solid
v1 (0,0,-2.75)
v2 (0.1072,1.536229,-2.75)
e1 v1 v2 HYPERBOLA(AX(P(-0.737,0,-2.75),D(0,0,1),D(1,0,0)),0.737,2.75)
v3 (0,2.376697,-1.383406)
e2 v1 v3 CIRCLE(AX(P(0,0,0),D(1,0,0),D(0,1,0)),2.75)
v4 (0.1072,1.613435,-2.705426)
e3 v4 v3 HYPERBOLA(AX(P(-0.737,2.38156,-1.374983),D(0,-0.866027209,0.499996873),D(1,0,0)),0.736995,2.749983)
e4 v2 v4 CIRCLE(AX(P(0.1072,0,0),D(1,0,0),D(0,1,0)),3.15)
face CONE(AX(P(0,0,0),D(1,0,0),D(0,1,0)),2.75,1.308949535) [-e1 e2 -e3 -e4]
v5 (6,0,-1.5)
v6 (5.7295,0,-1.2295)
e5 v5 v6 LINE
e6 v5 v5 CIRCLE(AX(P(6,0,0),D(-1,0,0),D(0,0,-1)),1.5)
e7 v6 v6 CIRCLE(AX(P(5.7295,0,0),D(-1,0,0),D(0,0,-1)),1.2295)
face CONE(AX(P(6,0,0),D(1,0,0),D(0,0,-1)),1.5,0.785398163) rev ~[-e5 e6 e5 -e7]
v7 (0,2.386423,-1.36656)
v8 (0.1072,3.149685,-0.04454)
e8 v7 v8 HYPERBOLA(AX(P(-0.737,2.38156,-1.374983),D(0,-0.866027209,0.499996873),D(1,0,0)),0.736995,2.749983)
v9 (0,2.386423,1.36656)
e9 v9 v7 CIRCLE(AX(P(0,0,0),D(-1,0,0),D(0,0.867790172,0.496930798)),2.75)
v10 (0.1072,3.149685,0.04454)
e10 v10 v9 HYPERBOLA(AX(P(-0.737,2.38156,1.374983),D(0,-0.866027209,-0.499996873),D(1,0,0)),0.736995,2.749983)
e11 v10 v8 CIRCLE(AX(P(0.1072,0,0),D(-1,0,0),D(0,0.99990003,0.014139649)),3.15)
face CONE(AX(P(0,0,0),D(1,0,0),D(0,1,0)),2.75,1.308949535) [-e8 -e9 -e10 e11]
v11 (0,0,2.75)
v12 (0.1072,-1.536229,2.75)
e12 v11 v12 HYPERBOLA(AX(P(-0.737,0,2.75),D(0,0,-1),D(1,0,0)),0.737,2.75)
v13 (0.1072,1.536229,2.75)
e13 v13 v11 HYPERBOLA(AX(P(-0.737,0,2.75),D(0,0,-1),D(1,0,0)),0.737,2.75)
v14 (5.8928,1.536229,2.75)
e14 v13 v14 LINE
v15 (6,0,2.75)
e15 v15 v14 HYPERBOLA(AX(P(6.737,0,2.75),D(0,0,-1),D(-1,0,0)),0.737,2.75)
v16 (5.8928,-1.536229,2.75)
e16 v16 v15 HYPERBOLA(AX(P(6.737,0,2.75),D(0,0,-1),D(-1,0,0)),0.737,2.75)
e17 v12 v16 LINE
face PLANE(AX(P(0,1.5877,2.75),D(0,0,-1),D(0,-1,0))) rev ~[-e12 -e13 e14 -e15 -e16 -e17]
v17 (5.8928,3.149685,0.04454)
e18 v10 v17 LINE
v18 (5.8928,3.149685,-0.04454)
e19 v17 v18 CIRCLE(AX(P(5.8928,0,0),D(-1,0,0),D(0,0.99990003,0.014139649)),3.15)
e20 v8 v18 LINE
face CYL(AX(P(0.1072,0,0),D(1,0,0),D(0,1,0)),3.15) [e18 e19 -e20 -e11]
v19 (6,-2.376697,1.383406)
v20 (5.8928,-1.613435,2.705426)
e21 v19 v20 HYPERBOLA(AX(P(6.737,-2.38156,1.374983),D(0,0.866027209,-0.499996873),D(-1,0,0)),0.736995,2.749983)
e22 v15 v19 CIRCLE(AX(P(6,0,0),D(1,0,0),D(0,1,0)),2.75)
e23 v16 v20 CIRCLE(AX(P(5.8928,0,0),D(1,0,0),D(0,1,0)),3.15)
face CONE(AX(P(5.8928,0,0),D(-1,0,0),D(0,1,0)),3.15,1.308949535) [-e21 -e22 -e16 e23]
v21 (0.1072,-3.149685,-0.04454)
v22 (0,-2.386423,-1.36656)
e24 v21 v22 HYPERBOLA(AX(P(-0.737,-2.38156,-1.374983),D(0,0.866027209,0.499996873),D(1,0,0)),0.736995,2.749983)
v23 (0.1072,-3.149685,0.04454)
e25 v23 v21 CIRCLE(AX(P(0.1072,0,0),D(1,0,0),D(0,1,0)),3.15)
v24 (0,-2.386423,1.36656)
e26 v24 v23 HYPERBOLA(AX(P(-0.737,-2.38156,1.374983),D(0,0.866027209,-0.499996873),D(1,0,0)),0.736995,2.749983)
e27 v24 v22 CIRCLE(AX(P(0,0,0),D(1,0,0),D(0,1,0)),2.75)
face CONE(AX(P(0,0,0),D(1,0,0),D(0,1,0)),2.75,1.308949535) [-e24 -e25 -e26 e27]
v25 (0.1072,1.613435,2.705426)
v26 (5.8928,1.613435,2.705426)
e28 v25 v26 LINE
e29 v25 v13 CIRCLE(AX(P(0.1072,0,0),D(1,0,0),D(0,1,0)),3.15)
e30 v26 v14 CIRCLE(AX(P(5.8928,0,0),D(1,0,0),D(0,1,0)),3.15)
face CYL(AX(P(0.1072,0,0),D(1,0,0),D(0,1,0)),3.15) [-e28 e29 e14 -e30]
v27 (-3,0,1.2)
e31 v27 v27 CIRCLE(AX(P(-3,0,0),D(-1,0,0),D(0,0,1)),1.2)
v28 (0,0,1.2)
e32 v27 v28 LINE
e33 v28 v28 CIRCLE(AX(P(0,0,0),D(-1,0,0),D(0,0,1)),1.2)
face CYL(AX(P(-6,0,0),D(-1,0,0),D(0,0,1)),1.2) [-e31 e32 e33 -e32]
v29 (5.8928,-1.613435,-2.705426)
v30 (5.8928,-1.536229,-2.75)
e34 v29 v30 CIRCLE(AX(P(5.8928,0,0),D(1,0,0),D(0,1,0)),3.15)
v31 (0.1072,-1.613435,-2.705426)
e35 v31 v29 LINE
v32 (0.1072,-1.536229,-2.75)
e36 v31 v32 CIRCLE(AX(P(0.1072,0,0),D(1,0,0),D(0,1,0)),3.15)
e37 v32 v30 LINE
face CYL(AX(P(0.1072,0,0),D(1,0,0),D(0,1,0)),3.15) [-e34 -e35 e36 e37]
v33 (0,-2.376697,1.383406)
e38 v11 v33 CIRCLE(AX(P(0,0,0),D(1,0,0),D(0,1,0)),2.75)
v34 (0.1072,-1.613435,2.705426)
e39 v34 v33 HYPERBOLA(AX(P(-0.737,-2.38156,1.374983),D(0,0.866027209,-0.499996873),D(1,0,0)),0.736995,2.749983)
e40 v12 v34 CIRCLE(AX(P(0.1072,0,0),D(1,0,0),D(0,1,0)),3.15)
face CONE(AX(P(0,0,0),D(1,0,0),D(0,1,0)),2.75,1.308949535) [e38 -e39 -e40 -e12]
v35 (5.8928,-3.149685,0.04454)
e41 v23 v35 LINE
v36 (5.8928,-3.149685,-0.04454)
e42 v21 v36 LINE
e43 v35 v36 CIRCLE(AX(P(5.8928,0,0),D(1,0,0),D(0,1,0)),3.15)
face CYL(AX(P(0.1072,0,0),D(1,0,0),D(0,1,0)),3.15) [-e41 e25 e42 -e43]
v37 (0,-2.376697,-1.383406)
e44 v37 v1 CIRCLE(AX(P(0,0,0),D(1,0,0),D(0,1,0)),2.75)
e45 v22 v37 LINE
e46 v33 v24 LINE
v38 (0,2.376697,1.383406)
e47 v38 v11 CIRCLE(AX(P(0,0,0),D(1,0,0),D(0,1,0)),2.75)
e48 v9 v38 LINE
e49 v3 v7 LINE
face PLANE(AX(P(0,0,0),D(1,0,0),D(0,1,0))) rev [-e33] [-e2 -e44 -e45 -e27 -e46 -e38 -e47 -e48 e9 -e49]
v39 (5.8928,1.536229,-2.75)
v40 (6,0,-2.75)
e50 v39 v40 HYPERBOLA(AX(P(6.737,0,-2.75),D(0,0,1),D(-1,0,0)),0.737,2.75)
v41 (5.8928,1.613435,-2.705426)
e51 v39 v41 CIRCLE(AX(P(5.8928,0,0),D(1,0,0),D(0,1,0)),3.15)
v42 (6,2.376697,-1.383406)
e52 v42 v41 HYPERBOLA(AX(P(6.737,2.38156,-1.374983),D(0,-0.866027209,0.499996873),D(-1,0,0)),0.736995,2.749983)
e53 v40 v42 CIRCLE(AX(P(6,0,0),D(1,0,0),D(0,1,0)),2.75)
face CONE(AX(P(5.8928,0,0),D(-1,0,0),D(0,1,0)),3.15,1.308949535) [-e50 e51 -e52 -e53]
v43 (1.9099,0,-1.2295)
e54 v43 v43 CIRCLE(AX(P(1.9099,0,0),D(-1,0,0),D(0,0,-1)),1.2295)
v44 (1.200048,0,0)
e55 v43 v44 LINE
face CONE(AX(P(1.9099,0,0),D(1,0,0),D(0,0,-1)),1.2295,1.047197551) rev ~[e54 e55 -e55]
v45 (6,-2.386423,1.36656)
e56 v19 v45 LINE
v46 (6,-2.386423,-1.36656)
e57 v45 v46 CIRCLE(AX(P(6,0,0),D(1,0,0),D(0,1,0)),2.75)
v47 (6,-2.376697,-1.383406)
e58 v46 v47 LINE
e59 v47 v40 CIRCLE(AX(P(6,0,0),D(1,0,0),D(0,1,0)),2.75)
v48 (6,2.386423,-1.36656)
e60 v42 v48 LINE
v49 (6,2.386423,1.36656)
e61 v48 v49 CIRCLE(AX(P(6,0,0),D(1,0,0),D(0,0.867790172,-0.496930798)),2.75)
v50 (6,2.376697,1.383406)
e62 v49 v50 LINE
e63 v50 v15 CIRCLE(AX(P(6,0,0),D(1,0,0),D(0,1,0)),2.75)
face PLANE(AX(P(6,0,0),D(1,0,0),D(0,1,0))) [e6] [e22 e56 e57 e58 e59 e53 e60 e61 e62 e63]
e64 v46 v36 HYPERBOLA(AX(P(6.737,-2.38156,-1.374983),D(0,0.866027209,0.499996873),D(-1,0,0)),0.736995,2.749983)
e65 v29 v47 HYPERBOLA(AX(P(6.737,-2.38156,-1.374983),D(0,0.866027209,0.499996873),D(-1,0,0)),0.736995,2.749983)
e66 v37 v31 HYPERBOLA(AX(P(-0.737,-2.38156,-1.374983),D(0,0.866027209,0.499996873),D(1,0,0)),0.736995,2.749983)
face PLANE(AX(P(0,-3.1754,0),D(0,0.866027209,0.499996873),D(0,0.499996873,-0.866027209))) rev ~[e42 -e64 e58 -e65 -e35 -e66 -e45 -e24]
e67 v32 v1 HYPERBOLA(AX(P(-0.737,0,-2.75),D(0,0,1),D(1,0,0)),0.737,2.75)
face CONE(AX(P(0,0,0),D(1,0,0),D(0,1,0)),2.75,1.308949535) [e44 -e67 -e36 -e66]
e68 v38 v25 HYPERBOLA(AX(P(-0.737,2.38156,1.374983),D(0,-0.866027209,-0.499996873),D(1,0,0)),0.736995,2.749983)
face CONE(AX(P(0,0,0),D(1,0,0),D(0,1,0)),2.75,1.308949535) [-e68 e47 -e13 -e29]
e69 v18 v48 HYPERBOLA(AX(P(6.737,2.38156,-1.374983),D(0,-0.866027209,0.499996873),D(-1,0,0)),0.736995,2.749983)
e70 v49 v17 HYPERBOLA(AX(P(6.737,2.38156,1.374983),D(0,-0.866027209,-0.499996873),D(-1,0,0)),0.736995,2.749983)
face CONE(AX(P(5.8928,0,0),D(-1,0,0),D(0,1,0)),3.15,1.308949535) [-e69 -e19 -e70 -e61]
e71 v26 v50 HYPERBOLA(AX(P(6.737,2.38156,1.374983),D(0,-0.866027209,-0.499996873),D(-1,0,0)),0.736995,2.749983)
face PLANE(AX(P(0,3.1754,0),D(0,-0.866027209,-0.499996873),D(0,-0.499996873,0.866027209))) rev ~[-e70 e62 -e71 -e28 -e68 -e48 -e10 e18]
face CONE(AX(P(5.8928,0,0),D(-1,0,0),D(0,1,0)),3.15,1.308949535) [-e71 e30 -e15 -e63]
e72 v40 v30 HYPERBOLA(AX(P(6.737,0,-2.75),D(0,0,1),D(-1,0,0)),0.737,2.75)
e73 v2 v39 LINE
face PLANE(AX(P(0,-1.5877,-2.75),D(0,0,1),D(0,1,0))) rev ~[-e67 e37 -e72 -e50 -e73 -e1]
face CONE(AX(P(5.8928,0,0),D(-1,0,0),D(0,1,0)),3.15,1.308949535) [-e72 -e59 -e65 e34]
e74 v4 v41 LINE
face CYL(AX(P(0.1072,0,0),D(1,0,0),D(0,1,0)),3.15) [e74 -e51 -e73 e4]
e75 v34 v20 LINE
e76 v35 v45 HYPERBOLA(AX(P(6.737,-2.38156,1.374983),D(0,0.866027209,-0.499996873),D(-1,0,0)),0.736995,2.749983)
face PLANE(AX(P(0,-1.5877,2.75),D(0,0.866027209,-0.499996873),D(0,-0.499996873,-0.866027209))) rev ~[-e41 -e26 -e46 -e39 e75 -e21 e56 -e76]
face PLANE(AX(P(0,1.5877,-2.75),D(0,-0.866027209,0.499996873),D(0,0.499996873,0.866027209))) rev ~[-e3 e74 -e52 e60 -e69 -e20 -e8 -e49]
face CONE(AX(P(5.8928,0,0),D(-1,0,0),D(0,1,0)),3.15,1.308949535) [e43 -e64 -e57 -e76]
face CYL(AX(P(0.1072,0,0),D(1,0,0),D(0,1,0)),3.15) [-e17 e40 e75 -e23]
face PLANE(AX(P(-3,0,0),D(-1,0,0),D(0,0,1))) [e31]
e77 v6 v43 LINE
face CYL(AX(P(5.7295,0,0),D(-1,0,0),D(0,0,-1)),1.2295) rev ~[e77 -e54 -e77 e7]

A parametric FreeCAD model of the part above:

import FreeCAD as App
import Part
import Sketcher

V = App.Vector
Q = App.Units.Quantity


def add_polygon(sketch, points):
    """Adds a closed chain of lines whose ends are joined by coincident constraints."""
    first, n = sketch.GeometryCount, len(points)
    for a, b in zip(points, points[1:] + points[:1]):
        sketch.addGeometry(Part.LineSegment(App.Vector(*a, 0), App.Vector(*b, 0)), False)
    for i in range(n):
        sketch.addConstraint(Sketcher.Constraint("Coincident", first + i, 2, first + (i + 1) % n, 1))

doc = App.newDocument("Part")
params = doc.addObject("Spreadsheet::Sheet", "Params")
for row, (alias, value) in enumerate([
    ("sketch1_width", "6 mm"),
    ("sketch1_height", "2.75 mm"),
    ("revolution_angle", "360 deg"),
    ("sketch2_width", "6 mm"),
    ("sketch2_width2", "0.6 mm"),
    ("revolution2_angle", "360 deg"),
    ("sketch3_diameter", "12.6 mm"),
    ("pocket1_length", "6 mm"),
    ("hole_diameter", "2.459 mm"),
    ("hole_depth", "4.0901 mm"),
    ("hole_csink_diameter", "3 mm"),
    ("sketch5_diameter", "2.4 mm"),
    ("pocket2_length", "6 mm"),
    ("pocket3_length", "3 mm"),
], start=1):
    params.set(f"A{row}", alias)
    params.set(f"B{row}", "=" + value)
    params.setAlias(f"B{row}", alias)

body = doc.addObject("PartDesign::Body", "Body")

sketch1 = body.newObject("Sketcher::SketchObject", "Sketch")
sketch1.AttachmentSupport = (doc.getObject("XY_Plane"), [""])
sketch1.MapMode = "FlatFace"
add_polygon(sketch1, [(0, 0), (6, 0), (6, 2.75), (5.8928, 3.15), (0.1072, 3.15), (0, 2.75)])
sketch1.addConstraint([
    Sketcher.Constraint("Horizontal", 0),
    Sketcher.Constraint("Vertical", 1),
    Sketcher.Constraint("Horizontal", 3),
    Sketcher.Constraint("Vertical", 5),
    Sketcher.Constraint("Coincident", 5, 2, -1, 1),
    Sketcher.Constraint("Horizontal", 1, 2, 4, 2),
    Sketcher.Constraint("Equal", 2, 4),
    Sketcher.Constraint("DistanceX", 0, 1, 0, 2, Q("6 mm")),
    Sketcher.Constraint("DistanceY", 1, 1, 1, 2, Q("2.75 mm")),
    Sketcher.Constraint("DistanceY", 1, 2, 2, 2, Q("0.4 mm")),
    Sketcher.Constraint("Distance", 2, Q("0.414 mm")),
])
sketch1.setExpression("Constraints[13]", "Params.sketch1_width")
sketch1.setExpression("Constraints[14]", "Params.sketch1_height")
revolution = body.newObject("PartDesign::Revolution", "Revolution")
revolution.Profile = sketch1
revolution.ReferenceAxis = (sketch1, ["H_Axis"])
revolution.setExpression("Angle", "Params.revolution_angle")

sketch2 = body.newObject("Sketcher::SketchObject", "Sketch001")
sketch2.AttachmentSupport = (doc.getObject("XY_Plane"), [""])
sketch2.MapMode = "FlatFace"
add_polygon(sketch2, [(-6, 0), (0, 0), (0, 1.2295), (-0.6, 1.2295), (-0.6, 1.5), (-5.6935, 1.5), (-6, 1.1935)])
sketch2.addConstraint([
    Sketcher.Constraint("Horizontal", 0),
    Sketcher.Constraint("Vertical", 1),
    Sketcher.Constraint("Horizontal", 2),
    Sketcher.Constraint("Vertical", 3),
    Sketcher.Constraint("Horizontal", 4),
    Sketcher.Constraint("Vertical", 6),
    Sketcher.Constraint("Coincident", 0, 2, -1, 1),
    Sketcher.Constraint("DistanceX", 0, 1, 0, 2, Q("6 mm")),
    Sketcher.Constraint("Angle", 5, Q("-135 deg")),
    Sketcher.Constraint("DistanceX", 2, 2, 2, 1, Q("0.6 mm")),
    Sketcher.Constraint("DistanceY", -1, 1, 3, 2, Q("1.5 mm")),
    Sketcher.Constraint("DistanceX", 4, 2, 4, 1, Q("5.0935 mm")),
    Sketcher.Constraint("DistanceY", 1, 1, 1, 2, Q("1.2295 mm")),
])
sketch2.setExpression("Constraints[14]", "Params.sketch2_width")
sketch2.setExpression("Constraints[16]", "Params.sketch2_width2")
revolution2 = body.newObject("PartDesign::Revolution", "Revolution001")
revolution2.Profile = sketch2
revolution2.ReferenceAxis = (sketch2, ["H_Axis"])
revolution2.setExpression("Angle", "Params.revolution2_angle")

sketch3 = body.newObject("Sketcher::SketchObject", "Sketch002")
sketch3.AttachmentSupport = (doc.getObject("YZ_Plane"), [""])
sketch3.MapMode = "FlatFace"
sketch3.addGeometry(Part.Circle(V(0, 0, 0), V(0, 0, 1), 6.3), False)
add_polygon(sketch3, [(-1.5877, 2.75), (1.5877, 2.75), (3.1754, 0), (1.5877, -2.75), (-1.5877, -2.75), (-3.1754, 0)])
sketch3.addConstraint([
    Sketcher.Constraint("Horizontal", 1),
    Sketcher.Constraint("Horizontal", 4),
    Sketcher.Constraint("Coincident", 0, 3, -1, 1),
    Sketcher.Constraint("Symmetric", 1, 2, 4, 2, -1, 1),
    Sketcher.Constraint("Symmetric", 2, 2, 5, 2, -1, 1),
    Sketcher.Constraint("PointOnObject", 2, 2, -1),
    Sketcher.Constraint("Parallel", 3, 6),
    Sketcher.Constraint("Vertical", 1, 2, 3, 2),
    Sketcher.Constraint("Diameter", 0, Q("12.6 mm")),
    Sketcher.Constraint("Angle", 2, Q("-60.0002 deg")),
    Sketcher.Constraint("DistanceY", 3, 2, 1, 2, Q("5.5 mm")),
    Sketcher.Constraint("DistanceX", 1, 1, 1, 2, Q("3.1754 mm")),
])
sketch3.setExpression("Constraints[14]", "Params.sketch3_diameter")
pocket1 = body.newObject("PartDesign::Pocket", "Pocket")
pocket1.Profile = sketch3
pocket1.setExpression("Length", "Params.pocket1_length")
pocket1.Reversed = True

sketch4 = body.newObject("Sketcher::SketchObject", "Sketch003")
sketch4.AttachmentSupport = (doc.getObject("YZ_Plane"), [""])
sketch4.MapMode = "FlatFace"
sketch4.AttachmentOffset = App.Placement(V(0, 0, 6), App.Rotation())
sketch4.addGeometry(Part.Circle(V(0, 0, 0), V(0, 0, 1), 1.2295), False)
sketch4.addConstraint([
    Sketcher.Constraint("Coincident", 0, 3, -1, 1),
    Sketcher.Constraint("Diameter", 0, Q("2.459 mm")),
])
doc.recompute()
hole = body.newObject("PartDesign::Hole", "Hole")
hole.Profile = sketch4
hole.ThreadType = "None"
hole.setExpression("Diameter", "Params.hole_diameter")
hole.DepthType = "Dimension"
hole.setExpression("Depth", "Params.hole_depth")
hole.DrillPoint = "Angled"
hole.DrillPointAngle = 120
hole.HoleCutType = "Countersink"
hole.setExpression("HoleCutDiameter", "Params.hole_csink_diameter")
hole.HoleCutCountersinkAngle = 90

sketch5 = body.newObject("Sketcher::SketchObject", "Sketch004")
sketch5.AttachmentSupport = (doc.getObject("YZ_Plane"), [""])
sketch5.MapMode = "FlatFace"
sketch5.AttachmentOffset = App.Placement(V(0, 0, -6), App.Rotation())
sketch5.addGeometry([
    Part.Circle(V(0, 0, 0), V(0, 0, 1), 2.1125),
    Part.Circle(V(0, 0, 0), V(0, 0, 1), 1.2),
], False)
sketch5.addConstraint([
    Sketcher.Constraint("Coincident", 0, 3, -1, 1),
    Sketcher.Constraint("Coincident", 1, 3, -1, 1),
    Sketcher.Constraint("Diameter", 1, Q("2.4 mm")),
    Sketcher.Constraint("Diameter", 0, Q("4.225 mm")),
])
sketch5.setExpression("Constraints[2]", "Params.sketch5_diameter")
pocket2 = body.newObject("PartDesign::Pocket", "Pocket001")
pocket2.Profile = sketch5
pocket2.setExpression("Length", "Params.pocket2_length")
pocket2.Reversed = True

sketch6 = body.newObject("Sketcher::SketchObject", "Sketch005")
sketch6.AttachmentSupport = (doc.getObject("YZ_Plane"), [""])
sketch6.MapMode = "FlatFace"
sketch6.AttachmentOffset = App.Placement(V(0, 0, -6), App.Rotation())
sketch6.addGeometry(Part.Circle(V(0, 0, 0), V(0, 0, 1), 4.3291), False)
sketch6.addConstraint([
    Sketcher.Constraint("Coincident", 0, 3, -1, 1),
    Sketcher.Constraint("Diameter", 0, Q("8.6582 mm")),
])
pocket3 = body.newObject("PartDesign::Pocket", "Pocket002")
pocket3.Profile = sketch6
pocket3.setExpression("Length", "Params.pocket3_length")
pocket3.Reversed = True

doc.recompute()
